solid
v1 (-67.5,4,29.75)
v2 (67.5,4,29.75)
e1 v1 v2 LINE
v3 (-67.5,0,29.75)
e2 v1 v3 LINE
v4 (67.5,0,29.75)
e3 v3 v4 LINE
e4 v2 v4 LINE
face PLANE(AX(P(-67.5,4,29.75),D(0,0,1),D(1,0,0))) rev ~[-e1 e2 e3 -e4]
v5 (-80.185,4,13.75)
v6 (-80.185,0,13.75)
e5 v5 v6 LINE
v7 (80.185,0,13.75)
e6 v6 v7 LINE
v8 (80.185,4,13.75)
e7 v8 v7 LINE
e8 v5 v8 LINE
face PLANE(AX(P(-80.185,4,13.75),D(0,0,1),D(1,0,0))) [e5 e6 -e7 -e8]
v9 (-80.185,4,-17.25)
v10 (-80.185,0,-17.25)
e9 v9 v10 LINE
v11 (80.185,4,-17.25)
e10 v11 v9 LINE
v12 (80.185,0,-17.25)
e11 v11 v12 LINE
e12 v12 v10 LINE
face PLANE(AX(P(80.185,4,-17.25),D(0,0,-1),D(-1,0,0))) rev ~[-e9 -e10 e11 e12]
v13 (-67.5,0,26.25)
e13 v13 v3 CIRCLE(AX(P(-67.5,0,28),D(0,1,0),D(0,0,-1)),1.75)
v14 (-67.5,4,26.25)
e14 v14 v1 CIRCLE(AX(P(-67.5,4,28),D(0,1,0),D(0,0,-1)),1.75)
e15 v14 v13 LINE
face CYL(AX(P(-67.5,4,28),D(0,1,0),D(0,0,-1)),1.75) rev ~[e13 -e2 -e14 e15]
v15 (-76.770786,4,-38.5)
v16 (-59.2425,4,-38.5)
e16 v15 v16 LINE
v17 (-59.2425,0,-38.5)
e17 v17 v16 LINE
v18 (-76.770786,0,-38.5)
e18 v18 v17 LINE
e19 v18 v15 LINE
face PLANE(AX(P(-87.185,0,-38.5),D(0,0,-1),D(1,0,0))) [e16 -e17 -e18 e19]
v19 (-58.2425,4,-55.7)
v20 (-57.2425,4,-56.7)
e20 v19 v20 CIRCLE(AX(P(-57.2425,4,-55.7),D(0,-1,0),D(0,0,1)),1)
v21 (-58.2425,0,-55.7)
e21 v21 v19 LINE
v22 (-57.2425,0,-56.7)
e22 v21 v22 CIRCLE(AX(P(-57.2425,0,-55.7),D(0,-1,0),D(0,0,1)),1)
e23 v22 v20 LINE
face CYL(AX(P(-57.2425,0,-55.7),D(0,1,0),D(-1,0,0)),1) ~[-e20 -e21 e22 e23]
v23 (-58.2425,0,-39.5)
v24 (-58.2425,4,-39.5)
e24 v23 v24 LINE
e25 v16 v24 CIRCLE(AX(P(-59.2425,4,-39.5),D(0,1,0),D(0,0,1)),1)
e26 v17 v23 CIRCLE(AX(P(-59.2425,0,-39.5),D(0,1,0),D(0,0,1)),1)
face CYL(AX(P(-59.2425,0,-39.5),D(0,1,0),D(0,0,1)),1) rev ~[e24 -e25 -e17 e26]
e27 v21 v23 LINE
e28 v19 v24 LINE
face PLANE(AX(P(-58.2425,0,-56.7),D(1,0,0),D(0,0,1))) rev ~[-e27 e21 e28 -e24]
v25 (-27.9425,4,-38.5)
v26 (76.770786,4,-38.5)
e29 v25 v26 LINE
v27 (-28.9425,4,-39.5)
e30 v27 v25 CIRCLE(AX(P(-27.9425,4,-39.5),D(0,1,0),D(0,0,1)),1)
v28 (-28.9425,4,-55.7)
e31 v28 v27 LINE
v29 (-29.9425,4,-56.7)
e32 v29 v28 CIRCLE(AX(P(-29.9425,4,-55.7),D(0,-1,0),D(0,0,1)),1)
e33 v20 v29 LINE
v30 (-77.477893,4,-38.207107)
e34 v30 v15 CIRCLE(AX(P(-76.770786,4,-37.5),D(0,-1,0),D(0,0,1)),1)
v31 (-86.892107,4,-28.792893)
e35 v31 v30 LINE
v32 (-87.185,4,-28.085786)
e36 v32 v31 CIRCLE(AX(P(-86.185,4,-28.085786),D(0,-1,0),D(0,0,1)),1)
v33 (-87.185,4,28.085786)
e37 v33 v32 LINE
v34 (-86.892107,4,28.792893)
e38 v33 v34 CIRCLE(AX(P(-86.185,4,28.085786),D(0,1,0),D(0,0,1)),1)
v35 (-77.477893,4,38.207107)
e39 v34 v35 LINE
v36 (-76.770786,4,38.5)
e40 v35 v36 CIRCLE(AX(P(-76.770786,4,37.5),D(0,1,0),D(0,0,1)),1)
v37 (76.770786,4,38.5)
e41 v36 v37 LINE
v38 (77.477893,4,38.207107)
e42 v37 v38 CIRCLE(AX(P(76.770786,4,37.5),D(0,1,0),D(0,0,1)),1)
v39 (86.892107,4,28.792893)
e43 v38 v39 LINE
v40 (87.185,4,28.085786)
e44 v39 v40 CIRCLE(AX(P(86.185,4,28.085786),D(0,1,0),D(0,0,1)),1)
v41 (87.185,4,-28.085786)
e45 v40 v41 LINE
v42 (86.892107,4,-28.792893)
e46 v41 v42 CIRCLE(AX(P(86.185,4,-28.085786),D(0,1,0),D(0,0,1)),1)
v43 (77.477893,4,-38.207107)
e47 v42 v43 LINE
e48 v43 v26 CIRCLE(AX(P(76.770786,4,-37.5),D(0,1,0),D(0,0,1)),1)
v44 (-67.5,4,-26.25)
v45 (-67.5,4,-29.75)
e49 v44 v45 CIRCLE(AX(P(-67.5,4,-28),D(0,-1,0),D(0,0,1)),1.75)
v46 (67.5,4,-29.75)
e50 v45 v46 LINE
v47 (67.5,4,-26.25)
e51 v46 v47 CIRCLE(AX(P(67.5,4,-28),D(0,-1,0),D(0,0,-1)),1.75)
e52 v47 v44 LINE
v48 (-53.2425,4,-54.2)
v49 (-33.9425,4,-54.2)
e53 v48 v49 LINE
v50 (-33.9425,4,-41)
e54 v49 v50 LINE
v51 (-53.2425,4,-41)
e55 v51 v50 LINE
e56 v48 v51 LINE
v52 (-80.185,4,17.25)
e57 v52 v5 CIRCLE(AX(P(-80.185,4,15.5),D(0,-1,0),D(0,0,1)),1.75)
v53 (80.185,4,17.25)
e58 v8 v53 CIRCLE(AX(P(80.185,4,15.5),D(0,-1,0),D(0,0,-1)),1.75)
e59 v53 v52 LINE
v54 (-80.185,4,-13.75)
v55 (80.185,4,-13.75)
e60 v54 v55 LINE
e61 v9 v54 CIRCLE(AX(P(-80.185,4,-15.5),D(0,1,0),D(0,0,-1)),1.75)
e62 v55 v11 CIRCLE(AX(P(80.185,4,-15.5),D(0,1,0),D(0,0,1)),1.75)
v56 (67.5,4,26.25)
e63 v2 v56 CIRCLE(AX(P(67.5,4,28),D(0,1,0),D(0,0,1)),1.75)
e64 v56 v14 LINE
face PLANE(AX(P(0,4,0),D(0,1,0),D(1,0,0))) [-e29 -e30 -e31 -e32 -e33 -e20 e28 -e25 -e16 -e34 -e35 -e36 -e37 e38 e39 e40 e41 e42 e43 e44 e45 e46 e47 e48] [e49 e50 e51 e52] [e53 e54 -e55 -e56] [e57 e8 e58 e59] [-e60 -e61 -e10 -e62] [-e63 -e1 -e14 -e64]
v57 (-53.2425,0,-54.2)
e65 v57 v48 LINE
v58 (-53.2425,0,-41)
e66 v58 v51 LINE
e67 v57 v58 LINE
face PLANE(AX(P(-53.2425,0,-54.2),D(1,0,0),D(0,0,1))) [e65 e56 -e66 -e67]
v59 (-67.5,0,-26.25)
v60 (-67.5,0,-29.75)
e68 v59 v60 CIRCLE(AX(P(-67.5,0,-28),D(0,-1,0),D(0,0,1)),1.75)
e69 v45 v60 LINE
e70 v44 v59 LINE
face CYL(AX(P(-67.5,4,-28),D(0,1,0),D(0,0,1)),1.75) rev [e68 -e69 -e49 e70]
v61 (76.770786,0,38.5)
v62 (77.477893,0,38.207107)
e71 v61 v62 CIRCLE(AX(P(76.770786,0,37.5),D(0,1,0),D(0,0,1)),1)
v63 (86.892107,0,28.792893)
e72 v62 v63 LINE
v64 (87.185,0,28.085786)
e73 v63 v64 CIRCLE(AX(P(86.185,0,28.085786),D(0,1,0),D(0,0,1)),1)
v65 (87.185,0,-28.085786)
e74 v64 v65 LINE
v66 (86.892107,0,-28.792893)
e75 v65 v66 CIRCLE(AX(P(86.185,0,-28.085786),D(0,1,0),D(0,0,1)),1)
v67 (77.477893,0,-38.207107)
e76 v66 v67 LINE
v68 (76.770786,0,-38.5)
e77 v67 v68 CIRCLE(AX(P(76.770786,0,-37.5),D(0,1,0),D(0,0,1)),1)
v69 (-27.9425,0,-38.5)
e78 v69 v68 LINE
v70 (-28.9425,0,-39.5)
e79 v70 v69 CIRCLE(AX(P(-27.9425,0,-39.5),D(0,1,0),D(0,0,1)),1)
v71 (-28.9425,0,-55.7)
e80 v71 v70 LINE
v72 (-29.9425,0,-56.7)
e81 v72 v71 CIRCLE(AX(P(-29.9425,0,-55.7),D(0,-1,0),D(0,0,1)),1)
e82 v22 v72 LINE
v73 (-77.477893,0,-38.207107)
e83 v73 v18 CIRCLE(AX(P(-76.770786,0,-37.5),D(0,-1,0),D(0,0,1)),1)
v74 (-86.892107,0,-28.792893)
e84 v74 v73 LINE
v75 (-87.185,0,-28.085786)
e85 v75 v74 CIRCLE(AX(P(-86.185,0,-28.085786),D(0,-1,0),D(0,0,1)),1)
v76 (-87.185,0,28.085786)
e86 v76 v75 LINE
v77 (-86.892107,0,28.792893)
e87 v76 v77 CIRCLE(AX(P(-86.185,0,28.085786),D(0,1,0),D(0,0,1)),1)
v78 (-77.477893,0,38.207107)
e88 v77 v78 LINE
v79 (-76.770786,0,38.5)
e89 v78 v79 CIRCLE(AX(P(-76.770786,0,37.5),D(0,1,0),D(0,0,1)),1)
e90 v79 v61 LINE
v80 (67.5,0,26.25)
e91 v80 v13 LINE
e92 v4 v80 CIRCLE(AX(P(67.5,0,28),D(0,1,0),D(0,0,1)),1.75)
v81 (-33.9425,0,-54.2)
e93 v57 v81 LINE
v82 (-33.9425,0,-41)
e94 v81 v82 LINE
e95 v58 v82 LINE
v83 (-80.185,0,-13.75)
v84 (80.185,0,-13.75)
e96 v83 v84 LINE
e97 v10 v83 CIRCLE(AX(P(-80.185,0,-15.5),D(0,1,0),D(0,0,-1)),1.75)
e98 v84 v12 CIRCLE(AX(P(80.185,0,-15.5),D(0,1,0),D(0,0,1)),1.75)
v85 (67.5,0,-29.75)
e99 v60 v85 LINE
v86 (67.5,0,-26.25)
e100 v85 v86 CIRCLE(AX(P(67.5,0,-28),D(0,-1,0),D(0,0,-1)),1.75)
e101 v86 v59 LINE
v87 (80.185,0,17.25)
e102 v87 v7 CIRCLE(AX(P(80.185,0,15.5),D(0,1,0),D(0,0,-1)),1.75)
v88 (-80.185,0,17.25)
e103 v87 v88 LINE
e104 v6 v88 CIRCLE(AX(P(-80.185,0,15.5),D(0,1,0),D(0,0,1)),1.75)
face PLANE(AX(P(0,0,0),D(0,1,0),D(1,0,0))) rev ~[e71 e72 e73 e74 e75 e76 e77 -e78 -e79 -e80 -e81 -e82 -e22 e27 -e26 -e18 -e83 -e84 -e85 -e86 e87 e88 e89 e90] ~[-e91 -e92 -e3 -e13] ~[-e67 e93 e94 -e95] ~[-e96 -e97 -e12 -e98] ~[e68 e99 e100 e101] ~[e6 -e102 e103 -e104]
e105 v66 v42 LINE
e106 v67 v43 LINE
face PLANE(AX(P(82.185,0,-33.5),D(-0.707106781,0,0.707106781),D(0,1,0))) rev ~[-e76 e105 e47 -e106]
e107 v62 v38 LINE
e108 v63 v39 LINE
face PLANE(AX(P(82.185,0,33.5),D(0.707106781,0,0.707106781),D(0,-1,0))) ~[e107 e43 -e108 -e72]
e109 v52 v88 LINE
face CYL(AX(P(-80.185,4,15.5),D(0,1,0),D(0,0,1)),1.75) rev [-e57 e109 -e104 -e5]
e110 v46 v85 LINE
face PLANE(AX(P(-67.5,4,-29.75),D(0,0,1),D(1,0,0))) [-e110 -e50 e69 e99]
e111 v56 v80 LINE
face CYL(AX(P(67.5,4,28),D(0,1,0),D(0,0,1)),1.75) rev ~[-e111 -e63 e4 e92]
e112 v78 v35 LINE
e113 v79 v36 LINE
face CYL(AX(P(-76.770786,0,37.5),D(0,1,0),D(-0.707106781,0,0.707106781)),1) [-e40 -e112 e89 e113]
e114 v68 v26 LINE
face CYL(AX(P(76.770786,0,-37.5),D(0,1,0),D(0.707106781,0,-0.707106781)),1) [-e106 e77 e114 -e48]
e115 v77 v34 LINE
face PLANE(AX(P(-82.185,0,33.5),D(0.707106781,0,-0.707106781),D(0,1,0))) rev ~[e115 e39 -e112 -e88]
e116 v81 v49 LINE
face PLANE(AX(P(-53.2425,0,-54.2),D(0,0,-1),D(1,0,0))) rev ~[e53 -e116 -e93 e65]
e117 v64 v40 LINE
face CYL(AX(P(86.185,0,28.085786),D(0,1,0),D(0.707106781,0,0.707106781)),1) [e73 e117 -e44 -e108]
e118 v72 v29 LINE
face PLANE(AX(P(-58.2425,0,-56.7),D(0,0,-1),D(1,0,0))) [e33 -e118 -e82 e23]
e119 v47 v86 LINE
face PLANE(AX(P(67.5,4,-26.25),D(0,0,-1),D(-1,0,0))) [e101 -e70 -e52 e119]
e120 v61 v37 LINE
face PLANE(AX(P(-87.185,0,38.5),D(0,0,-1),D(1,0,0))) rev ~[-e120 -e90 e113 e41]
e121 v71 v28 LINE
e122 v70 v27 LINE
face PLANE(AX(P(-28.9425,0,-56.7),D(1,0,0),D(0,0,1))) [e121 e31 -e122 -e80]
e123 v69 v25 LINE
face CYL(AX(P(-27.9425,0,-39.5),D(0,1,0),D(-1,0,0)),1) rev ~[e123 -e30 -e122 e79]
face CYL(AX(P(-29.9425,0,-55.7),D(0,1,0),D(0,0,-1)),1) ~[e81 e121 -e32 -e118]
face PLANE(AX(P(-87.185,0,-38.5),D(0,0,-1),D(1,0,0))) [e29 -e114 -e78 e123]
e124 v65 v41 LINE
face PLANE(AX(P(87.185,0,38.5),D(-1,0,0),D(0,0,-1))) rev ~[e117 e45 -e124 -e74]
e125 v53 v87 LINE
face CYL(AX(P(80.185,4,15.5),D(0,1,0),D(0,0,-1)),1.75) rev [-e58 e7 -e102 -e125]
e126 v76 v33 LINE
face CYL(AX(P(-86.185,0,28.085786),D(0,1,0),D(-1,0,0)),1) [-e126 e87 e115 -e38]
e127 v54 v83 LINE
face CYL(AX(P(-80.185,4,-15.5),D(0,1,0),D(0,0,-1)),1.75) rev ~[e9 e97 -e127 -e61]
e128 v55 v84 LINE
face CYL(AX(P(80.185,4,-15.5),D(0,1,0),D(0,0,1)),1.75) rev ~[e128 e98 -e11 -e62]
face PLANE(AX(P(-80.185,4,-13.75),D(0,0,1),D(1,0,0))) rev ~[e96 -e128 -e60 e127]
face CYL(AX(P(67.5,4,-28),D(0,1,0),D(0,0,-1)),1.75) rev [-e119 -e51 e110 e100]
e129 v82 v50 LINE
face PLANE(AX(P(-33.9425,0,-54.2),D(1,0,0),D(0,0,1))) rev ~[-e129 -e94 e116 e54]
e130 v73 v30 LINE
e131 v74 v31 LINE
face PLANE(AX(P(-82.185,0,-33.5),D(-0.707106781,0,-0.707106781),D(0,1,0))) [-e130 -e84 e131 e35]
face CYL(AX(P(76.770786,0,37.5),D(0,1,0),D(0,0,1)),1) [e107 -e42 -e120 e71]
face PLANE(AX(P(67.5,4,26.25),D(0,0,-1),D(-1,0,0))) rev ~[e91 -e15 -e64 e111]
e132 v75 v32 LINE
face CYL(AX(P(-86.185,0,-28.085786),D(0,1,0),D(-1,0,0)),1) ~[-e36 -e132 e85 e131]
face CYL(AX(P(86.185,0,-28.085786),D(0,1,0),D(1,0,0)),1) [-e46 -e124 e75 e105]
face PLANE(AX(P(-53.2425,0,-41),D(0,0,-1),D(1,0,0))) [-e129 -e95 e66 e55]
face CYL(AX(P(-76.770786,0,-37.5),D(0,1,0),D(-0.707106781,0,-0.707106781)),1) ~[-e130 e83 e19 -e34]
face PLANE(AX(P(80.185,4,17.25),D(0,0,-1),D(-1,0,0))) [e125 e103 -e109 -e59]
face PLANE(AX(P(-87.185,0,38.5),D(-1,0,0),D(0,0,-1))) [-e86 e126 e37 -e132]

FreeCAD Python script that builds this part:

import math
import FreeCAD as App
import Part
import Sketcher

V = App.Vector
Q = App.Units.Quantity


def edges_at(feature, points):
    """Names of the edges that pass closest to the given points."""
    edges = feature.Shape.Edges
    near = lambda p: min(range(len(edges)), key=lambda i: edges[i].distToShape(Part.Vertex(*p))[0])
    return sorted({f"Edge{near(p) + 1}" for p in points})

doc = App.newDocument("Part")
body = doc.addObject("PartDesign::Body", "Body")

sketch1 = body.newObject("Sketcher::SketchObject", "Sketch")
sketch1.AttachmentSupport = (doc.getObject("XZ_Plane"), [""])
sketch1.MapMode = "FlatFace"
sketch1.addGeometry([
    Part.LineSegment(V(-87, -38, 0), V(-87, 38, 0)),
    Part.LineSegment(V(-87, 38, 0), V(87, 38, 0)),
    Part.LineSegment(V(87, 38, 0), V(87, -38, 0)),
    Part.LineSegment(V(87, -38, 0), V(-87, -38, 0)),
], False)
sketch1.addConstraint([
    Sketcher.Constraint("Coincident", 0, 2, 1, 1),
    Sketcher.Constraint("Coincident", 1, 2, 2, 1),
    Sketcher.Constraint("Coincident", 2, 2, 3, 1),
    Sketcher.Constraint("Coincident", 3, 2, 0, 1),
    Sketcher.Constraint("Vertical", 0),
    Sketcher.Constraint("Horizontal", 1),
    Sketcher.Constraint("Vertical", 2),
    Sketcher.Constraint("Horizontal", 3),
    Sketcher.Constraint("Symmetric", 0, 2, 2, 2, -1, 1),
    Sketcher.Constraint("DistanceY", 0, 1, 0, 2, Q("77 mm")),
    Sketcher.Constraint("DistanceX", 1, 1, 1, 2, Q("174.37 mm")),
])
pad1 = body.newObject("PartDesign::Pad", "Pad")
pad1.Profile = sketch1
pad1.Length = 4
pad1.Reversed = True

sketch2 = body.newObject("Sketcher::SketchObject", "Sketch001")
sketch2.AttachmentSupport = (doc.getObject("XZ_Plane"), [""])
sketch2.MapMode = "FlatFace"
sketch2.AttachmentOffset = App.Placement(V(0, 0, -4), App.Rotation())
sketch2.addGeometry([
    Part.LineSegment(V(67.5, -29.8, 0), V(-67.5, -29.8, 0)),
    Part.ArcOfCircle(Part.Circle(V(-67.5, -28, 0), V(0, 0, 1), 1.8), math.radians(90), math.radians(270)),
    Part.LineSegment(V(-67.5, -26.2, 0), V(67.5, -26.2, 0)),
    Part.ArcOfCircle(Part.Circle(V(67.5, -28, 0), V(0, 0, 1), 1.8), math.radians(-90), math.radians(90)),
    Part.LineSegment(V(-67.5, 29.8, 0), V(67.5, 29.8, 0)),
    Part.ArcOfCircle(Part.Circle(V(67.5, 28, 0), V(0, 0, 1), 1.8), math.radians(-90), math.radians(90)),
    Part.LineSegment(V(67.5, 26.2, 0), V(-67.5, 26.2, 0)),
    Part.ArcOfCircle(Part.Circle(V(-67.5, 28, 0), V(0, 0, 1), 1.8), math.radians(90), math.radians(270)),
], False)
sketch2.addConstraint([
    Sketcher.Constraint("Tangent", 0, 2, 1, 2),
    Sketcher.Constraint("Tangent", 1, 1, 2, 1),
    Sketcher.Constraint("Tangent", 2, 2, 3, 2),
    Sketcher.Constraint("Tangent", 3, 1, 0, 1),
    Sketcher.Constraint("Tangent", 4, 2, 5, 2),
    Sketcher.Constraint("Tangent", 5, 1, 6, 1),
    Sketcher.Constraint("Tangent", 6, 2, 7, 2),
    Sketcher.Constraint("Tangent", 7, 1, 4, 1),
    Sketcher.Constraint("Horizontal", 0),
    Sketcher.Constraint("Horizontal", 2),
    Sketcher.Constraint("Horizontal", 4),
    Sketcher.Constraint("Horizontal", 6),
    Sketcher.Constraint("Equal", 3, 5),
    Sketcher.Constraint("Symmetric", 1, 3, 5, 3, -1, 1),
    Sketcher.Constraint("Vertical", 3, 3, 5, 3),
    Sketcher.Constraint("Vertical", 1, 3, 7, 3),
    Sketcher.Constraint("DistanceX", 0, 2, 0, 1, Q("135 mm")),
    Sketcher.Constraint("Radius", 1, Q("1.75 mm")),
    Sketcher.Constraint("DistanceY", 1, 3, -1, 1, Q("28 mm")),
])
pocket1 = body.newObject("PartDesign::Pocket", "Pocket")
pocket1.Profile = sketch2
pocket1.Length = 4
pocket1.Reversed = True

sketch3 = body.newObject("Sketcher::SketchObject", "Sketch002")
sketch3.AttachmentSupport = (doc.getObject("XZ_Plane"), [""])
sketch3.MapMode = "FlatFace"
sketch3.addGeometry([
    Part.LineSegment(V(-58, -38, 0), V(-58, -57, 0)),
    Part.LineSegment(V(-58, -57, 0), V(-29, -57, 0)),
    Part.LineSegment(V(-29, -57, 0), V(-29, -38, 0)),
    Part.LineSegment(V(-29, -38, 0), V(-58, -38, 0)),
    Part.LineSegment(V(-34, -54, 0), V(-53, -54, 0)),
    Part.LineSegment(V(-53, -54, 0), V(-53, -41, 0)),
    Part.LineSegment(V(-53, -41, 0), V(-34, -41, 0)),
    Part.LineSegment(V(-34, -41, 0), V(-34, -54, 0)),
], False)
sketch3.addConstraint([
    Sketcher.Constraint("Coincident", 0, 2, 1, 1),
    Sketcher.Constraint("Coincident", 1, 2, 2, 1),
    Sketcher.Constraint("Coincident", 2, 2, 3, 1),
    Sketcher.Constraint("Coincident", 3, 2, 0, 1),
    Sketcher.Constraint("Coincident", 4, 2, 5, 1),
    Sketcher.Constraint("Coincident", 5, 2, 6, 1),
    Sketcher.Constraint("Coincident", 6, 2, 7, 1),
    Sketcher.Constraint("Coincident", 7, 2, 4, 1),
    Sketcher.Constraint("Vertical", 0),
    Sketcher.Constraint("Horizontal", 1),
    Sketcher.Constraint("Vertical", 2),
    Sketcher.Constraint("Horizontal", 3),
    Sketcher.Constraint("Horizontal", 4),
    Sketcher.Constraint("Vertical", 5),
    Sketcher.Constraint("Horizontal", 6),
    Sketcher.Constraint("Vertical", 7),
    Sketcher.Constraint("DistanceX", 1, 1, 1, 2, Q("29.3 mm")),
    Sketcher.Constraint("DistanceX", 4, 2, 4, 1, Q("19.3 mm")),
    Sketcher.Constraint("DistanceY", 0, 2, 0, 1, Q("18.2 mm")),
    Sketcher.Constraint("DistanceY", 5, 1, 5, 2, Q("13.2 mm")),
    Sketcher.Constraint("DistanceY", 5, 2, -1, 1, Q("41 mm")),
    Sketcher.Constraint("DistanceX", 0, 2, 4, 2, Q("5 mm")),
    Sketcher.Constraint("DistanceY", 0, 2, -1, 1, Q("56.7 mm")),
    Sketcher.Constraint("DistanceX", 0, 2, -1, 1, Q("58.2425 mm")),
])
pad2 = body.newObject("PartDesign::Pad", "Pad001")
pad2.Profile = sketch3
pad2.Length = 4
pad2.Reversed = True
doc.recompute()

chamfer = body.newObject("PartDesign::Chamfer", "Chamfer")
chamfer.Base = (pad2, edges_at(pad2, [
    (-87.185, 2, -38.5),
    (87.185, 2, -38.5),
    (87.185, 2, 38.5),
    (-87.185, 2, 38.5),
]))
chamfer.Size = 10
doc.recompute()

fillet = body.newObject("PartDesign::Fillet", "Fillet")
fillet.Base = (chamfer, edges_at(chamfer, [
    (-58.242, 2, -56.7),
    (-58.242, 2, -38.5),
    (-28.942, 2, -38.5),
    (-28.942, 2, -56.7),
    (-87.185, 2, 28.5),
    (-87.185, 2, -28.5),
    (-77.185, 2, -38.5),
    (77.185, 2, -38.5),
    (87.185, 2, 28.5),
    (87.185, 2, -28.5),
    (-77.185, 2, 38.5),
    (77.185, 2, 38.5),
]))
fillet.Radius = 1

sketch4 = body.newObject("Sketcher::SketchObject", "Sketch003")
sketch4.AttachmentSupport = (doc.getObject("XZ_Plane"), [""])
sketch4.MapMode = "FlatFace"
sketch4.AttachmentOffset = App.Placement(V(0, 0, -4), App.Rotation())
sketch4.addGeometry([
    Part.LineSegment(V(-80.2, -13.8, 0), V(80.2, -13.8, 0)),
    Part.ArcOfCircle(Part.Circle(V(80.2, -15.5, 0), V(0, 0, 1), 1.8), math.radians(-90), math.radians(90)),
    Part.LineSegment(V(80.2, -17.2, 0), V(-80.2, -17.2, 0)),
    Part.ArcOfCircle(Part.Circle(V(-80.2, -15.5, 0), V(0, 0, 1), 1.8), math.radians(90), math.radians(270)),
    Part.LineSegment(V(-80.2, 17.2, 0), V(80.2, 17.2, 0)),
    Part.ArcOfCircle(Part.Circle(V(80.2, 15.5, 0), V(0, 0, 1), 1.8), math.radians(-90), math.radians(90)),
    Part.LineSegment(V(80.2, 13.8, 0), V(-80.2, 13.8, 0)),
    Part.ArcOfCircle(Part.Circle(V(-80.2, 15.5, 0), V(0, 0, 1), 1.8), math.radians(90), math.radians(270)),
], False)
sketch4.addConstraint([
    Sketcher.Constraint("Tangent", 0, 2, 1, 2),
    Sketcher.Constraint("Tangent", 1, 1, 2, 1),
    Sketcher.Constraint("Tangent", 2, 2, 3, 2),
    Sketcher.Constraint("Tangent", 3, 1, 0, 1),
    Sketcher.Constraint("Tangent", 4, 2, 5, 2),
    Sketcher.Constraint("Tangent", 5, 1, 6, 1),
    Sketcher.Constraint("Tangent", 6, 2, 7, 2),
    Sketcher.Constraint("Tangent", 7, 1, 4, 1),
    Sketcher.Constraint("Horizontal", 0),
    Sketcher.Constraint("Horizontal", 2),
    Sketcher.Constraint("Horizontal", 4),
    Sketcher.Constraint("Horizontal", 6),
    Sketcher.Constraint("Equal", 3, 5),
    Sketcher.Constraint("Symmetric", 3, 3, 5, 3, -1, 1),
    Sketcher.Constraint("Vertical", 1, 3, 5, 3),
    Sketcher.Constraint("Vertical", 3, 3, 7, 3),
    Sketcher.Constraint("Radius", 1, Q("1.75 mm")),
    Sketcher.Constraint("DistanceY", 1, 3, 5, 3, Q("31 mm")),
    Sketcher.Constraint("DistanceX", 0, 1, 0, 2, Q("160.37 mm")),
])
pocket2 = body.newObject("PartDesign::Pocket", "Pocket001")
pocket2.Profile = sketch4
pocket2.Length = 10
pocket2.Reversed = True

doc.recompute()
